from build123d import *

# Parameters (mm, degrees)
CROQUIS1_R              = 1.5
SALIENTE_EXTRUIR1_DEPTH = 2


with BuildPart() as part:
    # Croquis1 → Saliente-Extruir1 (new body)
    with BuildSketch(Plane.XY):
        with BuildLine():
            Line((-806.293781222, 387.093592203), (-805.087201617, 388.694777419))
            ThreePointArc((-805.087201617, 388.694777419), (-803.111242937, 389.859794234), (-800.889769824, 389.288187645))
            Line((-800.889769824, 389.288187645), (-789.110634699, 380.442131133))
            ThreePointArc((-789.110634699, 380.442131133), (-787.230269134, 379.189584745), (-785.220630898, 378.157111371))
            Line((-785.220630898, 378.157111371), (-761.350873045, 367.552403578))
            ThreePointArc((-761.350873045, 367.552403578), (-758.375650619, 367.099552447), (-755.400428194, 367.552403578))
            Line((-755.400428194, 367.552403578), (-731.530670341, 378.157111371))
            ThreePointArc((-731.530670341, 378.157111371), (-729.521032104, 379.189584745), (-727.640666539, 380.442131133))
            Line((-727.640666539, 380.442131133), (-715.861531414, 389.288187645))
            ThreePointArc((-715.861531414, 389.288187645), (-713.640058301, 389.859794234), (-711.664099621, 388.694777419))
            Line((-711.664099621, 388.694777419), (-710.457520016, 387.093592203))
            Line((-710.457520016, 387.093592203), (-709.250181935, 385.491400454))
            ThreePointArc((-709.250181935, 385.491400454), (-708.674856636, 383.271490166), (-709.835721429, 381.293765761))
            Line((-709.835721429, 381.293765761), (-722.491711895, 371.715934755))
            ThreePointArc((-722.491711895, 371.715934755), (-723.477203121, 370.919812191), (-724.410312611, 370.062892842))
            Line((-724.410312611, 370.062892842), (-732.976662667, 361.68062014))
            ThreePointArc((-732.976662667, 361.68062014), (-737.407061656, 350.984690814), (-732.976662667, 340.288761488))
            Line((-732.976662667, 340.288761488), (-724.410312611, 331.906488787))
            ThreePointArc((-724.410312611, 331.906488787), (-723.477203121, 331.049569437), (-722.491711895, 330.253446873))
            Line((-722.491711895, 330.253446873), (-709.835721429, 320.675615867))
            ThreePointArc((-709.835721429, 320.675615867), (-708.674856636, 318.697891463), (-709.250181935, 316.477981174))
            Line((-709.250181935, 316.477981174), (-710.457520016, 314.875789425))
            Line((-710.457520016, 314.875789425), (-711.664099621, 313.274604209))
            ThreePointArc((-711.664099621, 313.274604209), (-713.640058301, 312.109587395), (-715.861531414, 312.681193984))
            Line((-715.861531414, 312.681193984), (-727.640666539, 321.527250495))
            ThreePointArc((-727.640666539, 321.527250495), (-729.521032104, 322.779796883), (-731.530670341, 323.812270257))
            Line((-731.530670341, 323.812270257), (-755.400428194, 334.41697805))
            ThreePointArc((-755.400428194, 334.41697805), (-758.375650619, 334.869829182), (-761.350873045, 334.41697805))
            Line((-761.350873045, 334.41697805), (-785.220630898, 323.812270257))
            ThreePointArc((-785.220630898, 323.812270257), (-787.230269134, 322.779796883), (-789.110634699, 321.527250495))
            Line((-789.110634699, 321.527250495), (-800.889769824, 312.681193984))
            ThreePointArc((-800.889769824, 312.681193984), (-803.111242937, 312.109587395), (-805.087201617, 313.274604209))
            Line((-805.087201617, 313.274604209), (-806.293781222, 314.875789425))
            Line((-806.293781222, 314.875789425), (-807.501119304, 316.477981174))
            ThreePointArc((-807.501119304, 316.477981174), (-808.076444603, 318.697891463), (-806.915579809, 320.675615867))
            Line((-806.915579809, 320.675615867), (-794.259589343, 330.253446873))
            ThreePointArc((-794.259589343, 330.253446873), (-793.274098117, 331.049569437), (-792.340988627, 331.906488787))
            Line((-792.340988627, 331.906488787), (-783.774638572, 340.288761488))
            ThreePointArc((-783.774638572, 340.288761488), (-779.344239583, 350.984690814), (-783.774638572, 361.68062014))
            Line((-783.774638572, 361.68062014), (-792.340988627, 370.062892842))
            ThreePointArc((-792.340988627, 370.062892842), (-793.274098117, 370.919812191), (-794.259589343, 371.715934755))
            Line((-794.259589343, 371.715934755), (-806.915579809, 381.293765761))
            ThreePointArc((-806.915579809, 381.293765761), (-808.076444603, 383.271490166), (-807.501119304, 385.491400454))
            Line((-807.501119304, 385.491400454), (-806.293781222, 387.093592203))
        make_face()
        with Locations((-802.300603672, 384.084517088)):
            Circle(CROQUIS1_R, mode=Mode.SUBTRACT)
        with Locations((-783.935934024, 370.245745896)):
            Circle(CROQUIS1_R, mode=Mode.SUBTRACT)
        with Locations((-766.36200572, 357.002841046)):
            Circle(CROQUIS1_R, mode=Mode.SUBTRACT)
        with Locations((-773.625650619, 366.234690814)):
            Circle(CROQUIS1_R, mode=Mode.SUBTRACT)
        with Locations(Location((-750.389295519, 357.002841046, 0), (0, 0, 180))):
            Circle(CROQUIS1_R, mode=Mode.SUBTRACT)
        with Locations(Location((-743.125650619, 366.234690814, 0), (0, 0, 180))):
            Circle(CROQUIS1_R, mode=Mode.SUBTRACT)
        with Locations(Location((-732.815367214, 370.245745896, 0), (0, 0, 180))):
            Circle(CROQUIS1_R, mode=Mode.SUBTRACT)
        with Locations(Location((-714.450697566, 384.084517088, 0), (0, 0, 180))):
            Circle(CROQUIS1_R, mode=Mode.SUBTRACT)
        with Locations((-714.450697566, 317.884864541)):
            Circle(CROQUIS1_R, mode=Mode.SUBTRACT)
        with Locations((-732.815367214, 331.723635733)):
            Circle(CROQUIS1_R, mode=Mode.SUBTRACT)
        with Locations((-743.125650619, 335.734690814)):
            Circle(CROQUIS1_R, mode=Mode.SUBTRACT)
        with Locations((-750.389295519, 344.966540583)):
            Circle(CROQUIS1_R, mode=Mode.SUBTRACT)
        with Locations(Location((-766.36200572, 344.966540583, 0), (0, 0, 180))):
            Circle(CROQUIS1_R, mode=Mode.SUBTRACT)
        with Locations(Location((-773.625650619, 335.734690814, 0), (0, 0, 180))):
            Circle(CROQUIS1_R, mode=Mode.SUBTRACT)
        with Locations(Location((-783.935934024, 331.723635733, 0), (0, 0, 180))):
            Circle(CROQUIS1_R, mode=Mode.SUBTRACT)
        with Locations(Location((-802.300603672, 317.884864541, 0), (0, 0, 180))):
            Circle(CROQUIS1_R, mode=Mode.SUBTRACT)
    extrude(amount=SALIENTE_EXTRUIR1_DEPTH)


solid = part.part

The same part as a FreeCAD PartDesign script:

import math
import FreeCAD as App
import Part
import Sketcher

V = App.Vector
Q = App.Units.Quantity

doc = App.newDocument("Part")
body = doc.addObject("PartDesign::Body", "Body")

# Sketch on XY plane
sketch1 = doc.addObject("Sketcher::SketchObject", "Sketch")
body.addObject(sketch1)
sketch1.AttachmentSupport = (doc.XY_Plane, [""])
sketch1.MapMode = "FlatFace"
sketch1.addGeometry([
    Part.LineSegment(V(-805.1, 388.7, 0), V(-806.3, 387.1, 0)),  # 0
    Part.LineSegment(V(-806.3, 387.1, 0), V(-807.5, 385.5, 0)),  # 1
    Part.ArcOfCircle(Part.Circle(V(-805.1, 383.7, 0), V(0, 0, 1), 3), math.radians(143), math.radians(233)),  # 2
    Part.LineSegment(V(-806.9, 381.3, 0), V(-794.3, 371.7, 0)),  # 3
    Part.ArcOfCircle(Part.Circle(V(-806.3, 355.8, 0), V(0, 0, 1), 20), math.radians(45.62), math.radians(52.88)),  # 4
    Part.LineSegment(V(-792.3, 370.1, 0), V(-783.8, 361.7, 0)),  # 5
    Part.ArcOfCircle(Part.Circle(V(-794.5, 351, 0), V(0, 0, 1), 15.1), math.radians(-45), math.radians(45)),  # 6
    Part.LineSegment(V(-783.8, 340.3, 0), V(-792.3, 331.9, 0)),  # 7
    Part.ArcOfCircle(Part.Circle(V(-806.3, 346.2, 0), V(0, 0, 1), 20), math.radians(-52.88), math.radians(-45.62)),  # 8
    Part.LineSegment(V(-794.3, 330.3, 0), V(-806.9, 320.7, 0)),  # 9
    Part.ArcOfCircle(Part.Circle(V(-805.1, 318.3, 0), V(0, 0, 1), 3), math.radians(127), math.radians(217)),  # 10
    Part.LineSegment(V(-807.5, 316.5, 0), V(-806.3, 314.9, 0)),  # 11
    Part.LineSegment(V(-806.3, 314.9, 0), V(-805.1, 313.3, 0)),  # 12
    Part.ArcOfCircle(Part.Circle(V(-802.7, 315.1, 0), V(0, 0, 1), 3), math.radians(-143), math.radians(-53)),  # 13
    Part.LineSegment(V(-800.9, 312.7, 0), V(-789.1, 321.5, 0)),  # 14
    Part.ArcOfCircle(Part.Circle(V(-777.1, 305.5, 0), V(0, 0, 1), 20), math.radians(113.95), math.radians(126.91)),  # 15
    Part.LineSegment(V(-785.2, 323.8, 0), V(-761.4, 334.4, 0)),  # 16
    Part.ArcOfCircle(Part.Circle(V(-758.4, 324.9, 0), V(0, 0, 1), 10), math.radians(73), math.radians(107)),  # 17
    Part.LineSegment(V(-755.4, 334.4, 0), V(-731.5, 323.8, 0)),  # 18
    Part.ArcOfCircle(Part.Circle(V(-739.7, 305.5, 0), V(0, 0, 1), 20), math.radians(53.09), math.radians(66.05)),  # 19
    Part.LineSegment(V(-727.6, 321.5, 0), V(-715.9, 312.7, 0)),  # 20
    Part.ArcOfCircle(Part.Circle(V(-714.1, 315.1, 0), V(0, 0, 1), 3), math.radians(-127), math.radians(-37)),  # 21
    Part.LineSegment(V(-711.7, 313.3, 0), V(-710.5, 314.9, 0)),  # 22
    Part.LineSegment(V(-710.5, 314.9, 0), V(-709.3, 316.5, 0)),  # 23
    Part.ArcOfCircle(Part.Circle(V(-711.6, 318.3, 0), V(0, 0, 1), 3), math.radians(-37), math.radians(53)),  # 24
    Part.LineSegment(V(-709.8, 320.7, 0), V(-722.5, 330.3, 0)),  # 25
    Part.ArcOfCircle(Part.Circle(V(-710.4, 346.2, 0), V(0, 0, 1), 20), math.radians(-134.38), math.radians(-127.12)),  # 26
    Part.LineSegment(V(-724.4, 331.9, 0), V(-733, 340.3, 0)),  # 27
    Part.ArcOfCircle(Part.Circle(V(-722.3, 351, 0), V(0, 0, 1), 15.1), math.radians(135), math.radians(225)),  # 28
    Part.LineSegment(V(-733, 361.7, 0), V(-724.4, 370.1, 0)),  # 29
    Part.ArcOfCircle(Part.Circle(V(-710.4, 355.8, 0), V(0, 0, 1), 20), math.radians(127.12), math.radians(134.38)),  # 30
    Part.LineSegment(V(-722.5, 371.7, 0), V(-709.8, 381.3, 0)),  # 31
    Part.ArcOfCircle(Part.Circle(V(-711.6, 383.7, 0), V(0, 0, 1), 3), math.radians(-53), math.radians(37)),  # 32
    Part.LineSegment(V(-709.3, 385.5, 0), V(-710.5, 387.1, 0)),  # 33
    Part.LineSegment(V(-710.5, 387.1, 0), V(-711.7, 388.7, 0)),  # 34
    Part.ArcOfCircle(Part.Circle(V(-714.1, 386.9, 0), V(0, 0, 1), 3), math.radians(37), math.radians(127)),  # 35
    Part.LineSegment(V(-715.9, 389.3, 0), V(-727.6, 380.4, 0)),  # 36
    Part.ArcOfCircle(Part.Circle(V(-739.7, 396.4, 0), V(0, 0, 1), 20), math.radians(-66.05), math.radians(-53.09)),  # 37
    Part.LineSegment(V(-731.5, 378.2, 0), V(-755.4, 367.6, 0)),  # 38
    Part.ArcOfCircle(Part.Circle(V(-758.4, 377.1, 0), V(0, 0, 1), 10), math.radians(-107), math.radians(-73)),  # 39
    Part.LineSegment(V(-761.4, 367.6, 0), V(-785.2, 378.2, 0)),  # 40
    Part.ArcOfCircle(Part.Circle(V(-777.1, 396.4, 0), V(0, 0, 1), 20), math.radians(-126.91), math.radians(-113.95)),  # 41
    Part.LineSegment(V(-789.1, 380.4, 0), V(-800.9, 389.3, 0)),  # 42
    Part.ArcOfCircle(Part.Circle(V(-802.7, 386.9, 0), V(0, 0, 1), 3), math.radians(53), math.radians(143)),  # 43
    Part.Circle(V(-714.5, 317.9, 0), V(0, 0, 1), 1.5),  # 44
    Part.Circle(V(-732.8, 331.7, 0), V(0, 0, 1), 1.5),  # 45
    Part.Circle(V(-743.1, 335.7, 0), V(0, 0, 1), 1.5),  # 46
    Part.Circle(V(-750.4, 345, 0), V(0, 0, 1), 1.5),  # 47
    Part.Circle(V(-802.3, 317.9, 0), V(0, 0, 1), 1.5),  # 48
    Part.Circle(V(-783.9, 331.7, 0), V(0, 0, 1), 1.5),  # 49
    Part.Circle(V(-773.6, 335.7, 0), V(0, 0, 1), 1.5),  # 50
    Part.Circle(V(-766.4, 345, 0), V(0, 0, 1), 1.5),  # 51
    Part.Circle(V(-750.4, 357, 0), V(0, 0, 1), 1.5),  # 52
    Part.Circle(V(-743.1, 366.2, 0), V(0, 0, 1), 1.5),  # 53
    Part.Circle(V(-732.8, 370.2, 0), V(0, 0, 1), 1.5),  # 54
    Part.Circle(V(-714.5, 384.1, 0), V(0, 0, 1), 1.5),  # 55
    Part.Circle(V(-766.4, 357, 0), V(0, 0, 1), 1.5),  # 56
    Part.Circle(V(-773.6, 366.2, 0), V(0, 0, 1), 1.5),  # 57
    Part.Circle(V(-783.9, 370.2, 0), V(0, 0, 1), 1.5),  # 58
    Part.Circle(V(-802.3, 384.1, 0), V(0, 0, 1), 1.5),  # 59
], False)
sketch1.addConstraint([
    Sketcher.Constraint("Coincident", 0, 2, 1, 1),
    Sketcher.Constraint("Tangent", 1, 2, 2, 1),
    Sketcher.Constraint("Tangent", 2, 2, 3, 1),
    Sketcher.Constraint("Tangent", 3, 2, 4, 2),
    Sketcher.Constraint("Tangent", 4, 1, 5, 1),
    Sketcher.Constraint("Coincident", 5, 2, 6, 2),
    Sketcher.Constraint("Coincident", 6, 1, 7, 1),
    Sketcher.Constraint("Tangent", 7, 2, 8, 2),
    Sketcher.Constraint("Tangent", 8, 1, 9, 1),
    Sketcher.Constraint("Tangent", 9, 2, 10, 1),
    Sketcher.Constraint("Tangent", 10, 2, 11, 1),
    Sketcher.Constraint("Coincident", 11, 2, 12, 1),
    Sketcher.Constraint("Tangent", 12, 2, 13, 1),
    Sketcher.Constraint("Tangent", 13, 2, 14, 1),
    Sketcher.Constraint("Tangent", 14, 2, 15, 2),
    Sketcher.Constraint("Tangent", 15, 1, 16, 1),
    Sketcher.Constraint("Coincident", 16, 2, 17, 2),
    Sketcher.Constraint("Coincident", 17, 1, 18, 1),
    Sketcher.Constraint("Tangent", 18, 2, 19, 2),
    Sketcher.Constraint("Tangent", 19, 1, 20, 1),
    Sketcher.Constraint("Tangent", 20, 2, 21, 1),
    Sketcher.Constraint("Tangent", 21, 2, 22, 1),
    Sketcher.Constraint("Coincident", 22, 2, 23, 1),
    Sketcher.Constraint("Tangent", 23, 2, 24, 1),
    Sketcher.Constraint("Tangent", 24, 2, 25, 1),
    Sketcher.Constraint("Tangent", 25, 2, 26, 2),
    Sketcher.Constraint("Tangent", 26, 1, 27, 1),
    Sketcher.Constraint("Coincident", 27, 2, 28, 2),
    Sketcher.Constraint("Coincident", 28, 1, 29, 1),
    Sketcher.Constraint("Tangent", 29, 2, 30, 2),
    Sketcher.Constraint("Tangent", 30, 1, 31, 1),
    Sketcher.Constraint("Tangent", 31, 2, 32, 1),
    Sketcher.Constraint("Tangent", 32, 2, 33, 1),
    Sketcher.Constraint("Coincident", 33, 2, 34, 1),
    Sketcher.Constraint("Tangent", 34, 2, 35, 1),
    Sketcher.Constraint("Tangent", 35, 2, 36, 1),
    Sketcher.Constraint("Tangent", 36, 2, 37, 2),
    Sketcher.Constraint("Tangent", 37, 1, 38, 1),
    Sketcher.Constraint("Coincident", 38, 2, 39, 2),
    Sketcher.Constraint("Coincident", 39, 1, 40, 1),
    Sketcher.Constraint("Tangent", 40, 2, 41, 2),
    Sketcher.Constraint("Tangent", 41, 1, 42, 1),
    Sketcher.Constraint("Tangent", 42, 2, 43, 1),
    Sketcher.Constraint("Tangent", 43, 2, 0, 1),
    Sketcher.Constraint("Equal", 4, 8),
    Sketcher.Constraint("Equal", 2, 10),
    Sketcher.Constraint("Equal", 10, 13),
    Sketcher.Constraint("Equal", 8, 15),
    Sketcher.Constraint("Equal", 15, 19),
    Sketcher.Constraint("Equal", 13, 21),
    Sketcher.Constraint("Equal", 21, 24),
    Sketcher.Constraint("Equal", 19, 26),
    Sketcher.Constraint("Equal", 6, 28),
    Sketcher.Constraint("Equal", 26, 30),
    Sketcher.Constraint("Equal", 24, 32),
    Sketcher.Constraint("Equal", 32, 35),
    Sketcher.Constraint("Equal", 30, 37),
    Sketcher.Constraint("Equal", 17, 39),
    Sketcher.Constraint("Equal", 37, 41),
    Sketcher.Constraint("Equal", 35, 43),
    Sketcher.Constraint("Equal", 44, 45),
    Sketcher.Constraint("Equal", 45, 46),
    Sketcher.Constraint("Equal", 46, 47),
    Sketcher.Constraint("Equal", 47, 48),
    Sketcher.Constraint("Equal", 48, 49),
    Sketcher.Constraint("Equal", 49, 50),
    Sketcher.Constraint("Equal", 50, 51),
    Sketcher.Constraint("Equal", 51, 52),
    Sketcher.Constraint("Equal", 52, 53),
    Sketcher.Constraint("Equal", 53, 54),
    Sketcher.Constraint("Equal", 54, 55),
    Sketcher.Constraint("Equal", 55, 56),
    Sketcher.Constraint("Equal", 56, 57),
    Sketcher.Constraint("Equal", 57, 58),
    Sketcher.Constraint("Equal", 58, 59),
    Sketcher.Constraint("Parallel", 0, 1),
    Sketcher.Constraint("Parallel", 11, 12),
    Sketcher.Constraint("Parallel", 1, 22),
    Sketcher.Constraint("Parallel", 22, 23),
    Sketcher.Constraint("Parallel", 3, 25),
    Sketcher.Constraint("Parallel", 5, 27),
    Sketcher.Constraint("Parallel", 7, 29),
    Sketcher.Constraint("Parallel", 9, 31),
    Sketcher.Constraint("Parallel", 12, 33),
    Sketcher.Constraint("Parallel", 33, 34),
    Sketcher.Constraint("Parallel", 14, 36),
    Sketcher.Constraint("Parallel", 16, 38),
    Sketcher.Constraint("Parallel", 18, 40),
    Sketcher.Constraint("Parallel", 20, 42),
    Sketcher.Constraint("Horizontal", 15, 3, 19, 3),
    Sketcher.Constraint("Horizontal", 13, 3, 21, 3),
    Sketcher.Constraint("Horizontal", 10, 3, 24, 3),
    Sketcher.Constraint("Horizontal", 8, 3, 26, 3),
    Sketcher.Constraint("Horizontal", 6, 3, 28, 3),
    Sketcher.Constraint("Horizontal", 4, 3, 30, 3),
    Sketcher.Constraint("Horizontal", 2, 3, 32, 3),
    Sketcher.Constraint("Horizontal", 37, 3, 41, 3),
    Sketcher.Constraint("Horizontal", 35, 3, 43, 3),
    Sketcher.Constraint("Horizontal", 44, 3, 48, 3),
    Sketcher.Constraint("Horizontal", 45, 3, 49, 3),
    Sketcher.Constraint("Horizontal", 46, 3, 50, 3),
    Sketcher.Constraint("Horizontal", 47, 3, 51, 3),
    Sketcher.Constraint("Horizontal", 52, 3, 56, 3),
    Sketcher.Constraint("Horizontal", 53, 3, 57, 3),
    Sketcher.Constraint("Horizontal", 54, 3, 58, 3),
    Sketcher.Constraint("Horizontal", 55, 3, 59, 3),
    Sketcher.Constraint("Horizontal", 16, 2, 17, 1),
    Sketcher.Constraint("Horizontal", 15, 1, 18, 2),
    Sketcher.Constraint("Horizontal", 14, 2, 19, 1),
    Sketcher.Constraint("Horizontal", 12, 2, 21, 2),
    Sketcher.Constraint("Horizontal", 11, 2, 22, 2),
    Sketcher.Constraint("Horizontal", 9, 2, 24, 2),
    Sketcher.Constraint("Horizontal", 7, 2, 26, 1),
    Sketcher.Constraint("Horizontal", 6, 1, 27, 2),
    Sketcher.Constraint("Horizontal", 5, 2, 28, 1),
    Sketcher.Constraint("Horizontal", 0, 2, 33, 2),
    Sketcher.Constraint("Horizontal", 38, 2, 39, 1),
    Sketcher.Constraint("Vertical", 4, 3, 8, 3),
    Sketcher.Constraint("Vertical", 2, 3, 10, 3),
    Sketcher.Constraint("Vertical", 21, 3, 35, 3),
    Sketcher.Constraint("Vertical", 19, 3, 37, 3),
    Sketcher.Constraint("Vertical", 47, 3, 52, 3),
    Sketcher.Constraint("Vertical", 46, 3, 53, 3),
    Sketcher.Constraint("Vertical", 45, 3, 54, 3),
    Sketcher.Constraint("Vertical", 44, 3, 55, 3),
    Sketcher.Constraint("Vertical", 51, 3, 56, 3),
    Sketcher.Constraint("Vertical", 50, 3, 57, 3),
    Sketcher.Constraint("Vertical", 49, 3, 58, 3),
    Sketcher.Constraint("Vertical", 48, 3, 59, 3),
    Sketcher.Constraint("Vertical", 5, 2, 6, 1),
    Sketcher.Constraint("Vertical", 0, 2, 11, 2),
    Sketcher.Constraint("Vertical", 17, 1, 38, 2),
    Sketcher.Constraint("Diameter", 44, Q("3 mm")),
    Sketcher.Constraint("Radius", 2, Q("3 mm")),
    Sketcher.Constraint("Radius", 4, Q("20 mm")),
    Sketcher.Constraint("Radius", 17, Q("10 mm")),
    Sketcher.Constraint("Angle", 0, Q("-127 deg")),
    Sketcher.Constraint("Radius", 6, Q("15.126328 mm")),
    Sketcher.Constraint("Distance", 0, Q("2.004901 mm")),
    Sketcher.Constraint("DistanceX", 26, 3, -1, 1, Q("710.422598 mm")),
    Sketcher.Constraint("DistanceY", -1, 1, 37, 3, Q("396.4345 mm")),
    Sketcher.Constraint("DistanceY", -1, 1, 1, 2, Q("385.4914 mm")),
    Sketcher.Constraint("DistanceX", 12, 2, -1, 1, Q("805.087202 mm")),
    Sketcher.Constraint("DistanceX", 21, 2, -1, 1, Q("711.6641 mm")),
    Sketcher.Constraint("Distance", 1, Q("2.006161 mm")),
    Sketcher.Constraint("Distance", 3, Q("15.87164 mm")),
    Sketcher.Constraint("Distance", 16, Q("26.11944 mm")),
    Sketcher.Constraint("DistanceY", -1, 1, 6, 3, Q("350.984691 mm")),
    Sketcher.Constraint("DistanceY", -1, 1, 17, 3, Q("324.869829 mm")),
    Sketcher.Constraint("DistanceX", 46, 3, -1, 1, Q("743.125651 mm")),
    Sketcher.Constraint("DistanceY", -1, 1, 46, 3, Q("335.734691 mm")),
    Sketcher.Constraint("DistanceY", -1, 1, 47, 3, Q("344.966541 mm")),
    Sketcher.Constraint("DistanceX", 50, 3, -1, 1, Q("773.625651 mm")),
    Sketcher.Constraint("DistanceY", -1, 1, 52, 3, Q("357.002841 mm")),
    Sketcher.Constraint("DistanceY", -1, 1, 53, 3, Q("366.234691 mm")),
    Sketcher.Constraint("DistanceX", 4, 1, -1, 1, Q("792.340989 mm")),
    Sketcher.Constraint("DistanceX", 5, 2, -1, 1, Q("783.774639 mm")),
    Sketcher.Constraint("DistanceX", 13, 2, -1, 1, Q("800.88977 mm")),
    Sketcher.Constraint("DistanceX", 44, 3, -1, 1, Q("714.450698 mm")),
    Sketcher.Constraint("DistanceY", -1, 1, 44, 3, Q("317.884865 mm")),
    Sketcher.Constraint("DistanceX", 45, 3, -1, 1, Q("732.815367 mm")),
    Sketcher.Constraint("DistanceY", -1, 1, 45, 3, Q("331.723636 mm")),
    Sketcher.Constraint("DistanceX", 47, 3, -1, 1, Q("750.389296 mm")),
    Sketcher.Constraint("DistanceX", 48, 3, -1, 1, Q("802.300604 mm")),
    Sketcher.Constraint("DistanceX", 49, 3, -1, 1, Q("783.935934 mm")),
    Sketcher.Constraint("DistanceX", 51, 3, -1, 1, Q("766.362006 mm")),
    Sketcher.Constraint("DistanceY", -1, 1, 54, 3, Q("370.245746 mm")),
    Sketcher.Constraint("DistanceY", -1, 1, 55, 3, Q("384.084517 mm")),
])
pad1 = doc.addObject("PartDesign::Pad", "Pad")
body.addObject(pad1)
pad1.Profile = sketch1
pad1.Length = 2

doc.recompute()
